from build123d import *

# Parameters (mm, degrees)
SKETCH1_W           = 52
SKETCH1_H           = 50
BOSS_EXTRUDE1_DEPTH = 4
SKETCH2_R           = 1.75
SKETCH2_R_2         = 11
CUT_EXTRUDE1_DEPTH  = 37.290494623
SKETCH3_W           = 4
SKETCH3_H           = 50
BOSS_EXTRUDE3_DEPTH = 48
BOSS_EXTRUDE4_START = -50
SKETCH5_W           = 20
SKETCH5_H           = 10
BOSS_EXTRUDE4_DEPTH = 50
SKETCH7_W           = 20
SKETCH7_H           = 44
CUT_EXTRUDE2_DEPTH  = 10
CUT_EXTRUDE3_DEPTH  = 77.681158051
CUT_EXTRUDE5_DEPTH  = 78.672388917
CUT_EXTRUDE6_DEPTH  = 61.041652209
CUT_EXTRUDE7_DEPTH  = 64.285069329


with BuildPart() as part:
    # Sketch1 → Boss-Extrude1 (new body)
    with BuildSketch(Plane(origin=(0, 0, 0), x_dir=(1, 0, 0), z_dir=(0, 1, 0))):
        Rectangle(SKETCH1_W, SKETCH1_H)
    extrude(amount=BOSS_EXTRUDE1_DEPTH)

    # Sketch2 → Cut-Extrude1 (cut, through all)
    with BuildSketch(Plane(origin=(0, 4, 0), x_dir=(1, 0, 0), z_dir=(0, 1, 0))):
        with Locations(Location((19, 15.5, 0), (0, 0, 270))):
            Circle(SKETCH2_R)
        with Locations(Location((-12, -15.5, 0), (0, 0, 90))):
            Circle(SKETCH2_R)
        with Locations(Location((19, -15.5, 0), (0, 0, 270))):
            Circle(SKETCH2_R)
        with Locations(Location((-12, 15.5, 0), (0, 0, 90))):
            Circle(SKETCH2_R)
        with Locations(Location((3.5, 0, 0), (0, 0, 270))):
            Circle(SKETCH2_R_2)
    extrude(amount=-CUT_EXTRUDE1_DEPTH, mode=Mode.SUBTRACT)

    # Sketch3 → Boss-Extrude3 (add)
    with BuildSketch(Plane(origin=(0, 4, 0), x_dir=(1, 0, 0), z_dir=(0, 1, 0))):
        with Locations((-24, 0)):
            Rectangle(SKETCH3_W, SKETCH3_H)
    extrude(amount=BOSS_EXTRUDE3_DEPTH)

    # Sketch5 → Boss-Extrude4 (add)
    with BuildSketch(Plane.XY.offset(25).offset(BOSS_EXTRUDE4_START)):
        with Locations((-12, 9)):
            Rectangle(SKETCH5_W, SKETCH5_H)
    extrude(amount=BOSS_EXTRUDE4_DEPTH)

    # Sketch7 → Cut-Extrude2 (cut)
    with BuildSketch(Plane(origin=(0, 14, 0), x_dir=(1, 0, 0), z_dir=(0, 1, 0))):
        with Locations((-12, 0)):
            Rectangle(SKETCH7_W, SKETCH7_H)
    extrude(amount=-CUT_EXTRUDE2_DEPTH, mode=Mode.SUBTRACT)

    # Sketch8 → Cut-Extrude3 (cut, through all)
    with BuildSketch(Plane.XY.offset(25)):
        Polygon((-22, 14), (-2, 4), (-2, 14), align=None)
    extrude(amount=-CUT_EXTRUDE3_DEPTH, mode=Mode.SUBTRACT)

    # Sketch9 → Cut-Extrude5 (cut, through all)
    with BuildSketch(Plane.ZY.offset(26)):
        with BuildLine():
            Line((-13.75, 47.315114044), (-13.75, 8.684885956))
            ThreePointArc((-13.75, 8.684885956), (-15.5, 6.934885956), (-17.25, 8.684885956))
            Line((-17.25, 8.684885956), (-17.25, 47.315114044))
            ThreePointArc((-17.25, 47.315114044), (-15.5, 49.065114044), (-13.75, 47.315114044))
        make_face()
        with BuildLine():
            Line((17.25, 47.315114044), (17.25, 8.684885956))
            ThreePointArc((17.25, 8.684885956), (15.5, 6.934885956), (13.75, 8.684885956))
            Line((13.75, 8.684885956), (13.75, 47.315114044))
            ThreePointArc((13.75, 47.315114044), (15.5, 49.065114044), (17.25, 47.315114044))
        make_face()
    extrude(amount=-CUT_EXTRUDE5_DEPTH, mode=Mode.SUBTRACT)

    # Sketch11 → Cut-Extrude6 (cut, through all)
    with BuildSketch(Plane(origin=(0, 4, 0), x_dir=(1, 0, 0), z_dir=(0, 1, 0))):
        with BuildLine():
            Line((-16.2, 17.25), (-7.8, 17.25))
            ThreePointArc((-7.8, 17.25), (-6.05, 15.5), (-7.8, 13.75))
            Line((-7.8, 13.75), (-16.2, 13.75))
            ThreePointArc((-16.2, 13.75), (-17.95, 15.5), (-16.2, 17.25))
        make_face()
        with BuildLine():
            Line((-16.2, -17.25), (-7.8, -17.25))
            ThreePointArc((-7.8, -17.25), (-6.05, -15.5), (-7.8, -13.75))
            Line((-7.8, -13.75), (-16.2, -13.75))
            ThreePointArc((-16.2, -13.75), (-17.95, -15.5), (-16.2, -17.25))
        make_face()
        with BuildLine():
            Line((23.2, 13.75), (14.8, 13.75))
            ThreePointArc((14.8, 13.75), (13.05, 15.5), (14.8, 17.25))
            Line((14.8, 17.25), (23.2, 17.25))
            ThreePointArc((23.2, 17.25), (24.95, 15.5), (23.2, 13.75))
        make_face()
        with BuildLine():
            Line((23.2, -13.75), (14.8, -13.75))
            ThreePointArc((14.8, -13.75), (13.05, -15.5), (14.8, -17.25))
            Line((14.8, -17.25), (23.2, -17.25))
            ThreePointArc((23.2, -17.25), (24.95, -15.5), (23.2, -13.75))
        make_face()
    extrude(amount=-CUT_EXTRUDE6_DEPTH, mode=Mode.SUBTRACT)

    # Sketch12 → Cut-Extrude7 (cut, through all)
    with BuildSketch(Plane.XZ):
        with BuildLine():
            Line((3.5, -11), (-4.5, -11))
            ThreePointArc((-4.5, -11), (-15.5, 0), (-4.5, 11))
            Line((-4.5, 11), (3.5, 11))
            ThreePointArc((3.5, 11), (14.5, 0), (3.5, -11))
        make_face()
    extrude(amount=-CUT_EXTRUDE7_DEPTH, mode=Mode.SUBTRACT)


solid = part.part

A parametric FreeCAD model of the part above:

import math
import FreeCAD as App
import Part
import Sketcher
from FreeCAD import Vector
Q = App.Units.Quantity

doc = App.newDocument("Part")
body = doc.addObject("PartDesign::Body", "Body")

sketch1 = doc.addObject("Sketcher::SketchObject", "Sketch")
body.addObject(sketch1)
sketch1.AttachmentSupport = (doc.XZ_Plane, [""])
sketch1.MapMode = "FlatFace"
sketch1.addGeometry(Part.LineSegment(Vector(-26, -25, 0), Vector(-26, 25, 0)), False)
sketch1.addGeometry(Part.LineSegment(Vector(-26, 25, 0), Vector(26, 25, 0)), False)
sketch1.addGeometry(Part.LineSegment(Vector(26, 25, 0), Vector(26, -25, 0)), False)
sketch1.addGeometry(Part.LineSegment(Vector(26, -25, 0), Vector(-26, -25, 0)), False)
sketch1.addConstraint(Sketcher.Constraint("Coincident", 0, 2, 1, 1))
sketch1.addConstraint(Sketcher.Constraint("Coincident", 1, 2, 2, 1))
sketch1.addConstraint(Sketcher.Constraint("Coincident", 2, 2, 3, 1))
sketch1.addConstraint(Sketcher.Constraint("Coincident", 3, 2, 0, 1))
sketch1.addConstraint(Sketcher.Constraint("Vertical", 0))
sketch1.addConstraint(Sketcher.Constraint("Horizontal", 1))
sketch1.addConstraint(Sketcher.Constraint("Vertical", 2))
sketch1.addConstraint(Sketcher.Constraint("Horizontal", 3))
sketch1.addConstraint(Sketcher.Constraint("Symmetric", 0, 2, 2, 2, -1, 1))
sketch1.addConstraint(Sketcher.Constraint("DistanceX", 1, 1, 1, 2, Q("52 mm")))
sketch1.addConstraint(Sketcher.Constraint("DistanceY", 0, 1, 0, 2, Q("50 mm")))
pad1 = doc.addObject("PartDesign::Pad", "Pad")
body.addObject(pad1)
pad1.Profile = sketch1
pad1.Length = 4
pad1.Reversed = True

sketch2 = doc.addObject("Sketcher::SketchObject", "Sketch001")
body.addObject(sketch2)
sketch2.AttachmentSupport = (doc.XZ_Plane, [""])
sketch2.MapMode = "FlatFace"
sketch2.AttachmentOffset = App.Placement(Vector(0, 0, -4), App.Rotation())
sketch2.addGeometry(Part.Circle(Vector(19, -15.5, 0), Vector(0, 0, 1), 1.75), False)
sketch2.addGeometry(Part.Circle(Vector(-12, 15.5, 0), Vector(0, 0, 1), 1.75), False)
sketch2.addGeometry(Part.Circle(Vector(19, 15.5, 0), Vector(0, 0, 1), 1.75), False)
sketch2.addGeometry(Part.Circle(Vector(-12, -15.5, 0), Vector(0, 0, 1), 1.75), False)
sketch2.addGeometry(Part.Circle(Vector(3.5, 0, 0), Vector(0, 0, 1), 11), False)
sketch2.addConstraint(Sketcher.Constraint("Equal", 0, 1))
sketch2.addConstraint(Sketcher.Constraint("Equal", 1, 2))
sketch2.addConstraint(Sketcher.Constraint("Equal", 2, 3))
sketch2.addConstraint(Sketcher.Constraint("Symmetric", 0, 3, 2, 3, -1))
sketch2.addConstraint(Sketcher.Constraint("Symmetric", 1, 3, 3, 3, -1))
sketch2.addConstraint(Sketcher.Constraint("PointOnObject", 4, 3, -1))
sketch2.addConstraint(Sketcher.Constraint("Horizontal", 1, 3, 2, 3))
sketch2.addConstraint(Sketcher.Constraint("Diameter", 4, Q("22 mm")))
sketch2.addConstraint(Sketcher.Constraint("Diameter", 0, Q("3.5 mm")))
sketch2.addConstraint(Sketcher.Constraint("DistanceX", -1, 1, 0, 3, Q("19 mm")))
sketch2.addConstraint(Sketcher.Constraint("DistanceX", 1, 3, -1, 1, Q("12 mm")))
sketch2.addConstraint(Sketcher.Constraint("DistanceY", 0, 3, 1, 3, Q("31 mm")))
sketch2.addConstraint(Sketcher.Constraint("DistanceX", -1, 1, 4, 3, Q("3.5 mm")))
pocket1 = doc.addObject("PartDesign::Pocket", "Pocket")
body.addObject(pocket1)
pocket1.Profile = sketch2
pocket1.Type = "ThroughAll"
pocket1.Reversed = True

sketch3 = doc.addObject("Sketcher::SketchObject", "Sketch002")
body.addObject(sketch3)
sketch3.AttachmentSupport = (doc.XZ_Plane, [""])
sketch3.MapMode = "FlatFace"
sketch3.AttachmentOffset = App.Placement(Vector(0, 0, -4), App.Rotation())
sketch3.addGeometry(Part.LineSegment(Vector(-26, -25, 0), Vector(-26, 25, 0)), False)
sketch3.addGeometry(Part.LineSegment(Vector(-26, 25, 0), Vector(-22, 25, 0)), False)
sketch3.addGeometry(Part.LineSegment(Vector(-22, 25, 0), Vector(-22, -25, 0)), False)
sketch3.addGeometry(Part.LineSegment(Vector(-22, -25, 0), Vector(-26, -25, 0)), False)
sketch3.addConstraint(Sketcher.Constraint("Coincident", 0, 2, 1, 1))
sketch3.addConstraint(Sketcher.Constraint("Coincident", 1, 2, 2, 1))
sketch3.addConstraint(Sketcher.Constraint("Coincident", 2, 2, 3, 1))
sketch3.addConstraint(Sketcher.Constraint("Coincident", 3, 2, 0, 1))
sketch3.addConstraint(Sketcher.Constraint("Vertical", 0))
sketch3.addConstraint(Sketcher.Constraint("Horizontal", 1))
sketch3.addConstraint(Sketcher.Constraint("Vertical", 2))
sketch3.addConstraint(Sketcher.Constraint("Horizontal", 3))
sketch3.addConstraint(Sketcher.Constraint("DistanceX", 1, 1, 1, 2, Q("4 mm")))
sketch3.addConstraint(Sketcher.Constraint("DistanceY", 0, 1, 0, 2, Q("50 mm")))
sketch3.addConstraint(Sketcher.Constraint("DistanceX", 0, 2, -1, 1, Q("26 mm")))
sketch3.addConstraint(Sketcher.Constraint("DistanceY", -1, 1, 0, 2, Q("25 mm")))
pad2 = doc.addObject("PartDesign::Pad", "Pad001")
body.addObject(pad2)
pad2.Profile = sketch3
pad2.Length = 48
pad2.Reversed = True

sketch4 = doc.addObject("Sketcher::SketchObject", "Sketch003")
body.addObject(sketch4)
sketch4.AttachmentSupport = (doc.XY_Plane, [""])
sketch4.MapMode = "FlatFace"
sketch4.AttachmentOffset = App.Placement(Vector(0, 0, -25), App.Rotation())
sketch4.addGeometry(Part.LineSegment(Vector(-22, 14, 0), Vector(-22, 4, 0)), False)
sketch4.addGeometry(Part.LineSegment(Vector(-22, 4, 0), Vector(-2, 4, 0)), False)
sketch4.addGeometry(Part.LineSegment(Vector(-2, 4, 0), Vector(-2, 14, 0)), False)
sketch4.addGeometry(Part.LineSegment(Vector(-2, 14, 0), Vector(-22, 14, 0)), False)
sketch4.addConstraint(Sketcher.Constraint("Coincident", 0, 2, 1, 1))
sketch4.addConstraint(Sketcher.Constraint("Coincident", 1, 2, 2, 1))
sketch4.addConstraint(Sketcher.Constraint("Coincident", 2, 2, 3, 1))
sketch4.addConstraint(Sketcher.Constraint("Coincident", 3, 2, 0, 1))
sketch4.addConstraint(Sketcher.Constraint("Vertical", 0))
sketch4.addConstraint(Sketcher.Constraint("Horizontal", 1))
sketch4.addConstraint(Sketcher.Constraint("Vertical", 2))
sketch4.addConstraint(Sketcher.Constraint("Horizontal", 3))
sketch4.addConstraint(Sketcher.Constraint("DistanceX", 1, 1, 1, 2, Q("20 mm")))
sketch4.addConstraint(Sketcher.Constraint("DistanceY", 0, 2, 0, 1, Q("10 mm")))
sketch4.addConstraint(Sketcher.Constraint("DistanceX", 0, 2, -1, 1, Q("22 mm")))
sketch4.addConstraint(Sketcher.Constraint("DistanceY", -1, 1, 0, 2, Q("4 mm")))
pad3 = doc.addObject("PartDesign::Pad", "Pad002")
body.addObject(pad3)
pad3.Profile = sketch4
pad3.Length = 50

sketch5 = doc.addObject("Sketcher::SketchObject", "Sketch004")
body.addObject(sketch5)
sketch5.AttachmentSupport = (doc.XZ_Plane, [""])
sketch5.MapMode = "FlatFace"
sketch5.AttachmentOffset = App.Placement(Vector(0, 0, -14), App.Rotation())
sketch5.addGeometry(Part.LineSegment(Vector(-22, -22, 0), Vector(-22, 22, 0)), False)
sketch5.addGeometry(Part.LineSegment(Vector(-22, 22, 0), Vector(-2, 22, 0)), False)
sketch5.addGeometry(Part.LineSegment(Vector(-2, 22, 0), Vector(-2, -22, 0)), False)
sketch5.addGeometry(Part.LineSegment(Vector(-2, -22, 0), Vector(-22, -22, 0)), False)
sketch5.addConstraint(Sketcher.Constraint("Coincident", 0, 2, 1, 1))
sketch5.addConstraint(Sketcher.Constraint("Coincident", 1, 2, 2, 1))
sketch5.addConstraint(Sketcher.Constraint("Coincident", 2, 2, 3, 1))
sketch5.addConstraint(Sketcher.Constraint("Coincident", 3, 2, 0, 1))
sketch5.addConstraint(Sketcher.Constraint("Vertical", 0))
sketch5.addConstraint(Sketcher.Constraint("Horizontal", 1))
sketch5.addConstraint(Sketcher.Constraint("Vertical", 2))
sketch5.addConstraint(Sketcher.Constraint("Horizontal", 3))
sketch5.addConstraint(Sketcher.Constraint("DistanceX", 1, 1, 1, 2, Q("20 mm")))
sketch5.addConstraint(Sketcher.Constraint("DistanceY", 0, 1, 0, 2, Q("44 mm")))
sketch5.addConstraint(Sketcher.Constraint("DistanceX", 0, 2, -1, 1, Q("22 mm")))
sketch5.addConstraint(Sketcher.Constraint("DistanceY", -1, 1, 0, 2, Q("22 mm")))
pocket2 = doc.addObject("PartDesign::Pocket", "Pocket001")
body.addObject(pocket2)
pocket2.Profile = sketch5
pocket2.Length = 10
pocket2.Reversed = True

sketch6 = doc.addObject("Sketcher::SketchObject", "Sketch005")
body.addObject(sketch6)
sketch6.AttachmentSupport = (doc.XY_Plane, [""])
sketch6.MapMode = "FlatFace"
sketch6.AttachmentOffset = App.Placement(Vector(0, 0, 25), App.Rotation())
sketch6.addGeometry(Part.LineSegment(Vector(-22, 14, 0), Vector(-2, 4, 0)), False)
sketch6.addGeometry(Part.LineSegment(Vector(-2, 4, 0), Vector(-2, 14, 0)), False)
sketch6.addGeometry(Part.LineSegment(Vector(-2, 14, 0), Vector(-22, 14, 0)), False)
sketch6.addConstraint(Sketcher.Constraint("Coincident", 0, 2, 1, 1))
sketch6.addConstraint(Sketcher.Constraint("Coincident", 1, 2, 2, 1))
sketch6.addConstraint(Sketcher.Constraint("Coincident", 2, 2, 0, 1))
sketch6.addConstraint(Sketcher.Constraint("Vertical", 1))
sketch6.addConstraint(Sketcher.Constraint("Horizontal", 2))
sketch6.addConstraint(Sketcher.Constraint("DistanceX", 2, 2, 2, 1, Q("20 mm")))
sketch6.addConstraint(Sketcher.Constraint("DistanceY", 1, 1, 1, 2, Q("10 mm")))
sketch6.addConstraint(Sketcher.Constraint("DistanceX", 0, 2, -1, 1, Q("2 mm")))
sketch6.addConstraint(Sketcher.Constraint("DistanceY", -1, 1, 0, 2, Q("4 mm")))
pocket3 = doc.addObject("PartDesign::Pocket", "Pocket002")
body.addObject(pocket3)
pocket3.Profile = sketch6
pocket3.Type = "ThroughAll"

sketch7 = doc.addObject("Sketcher::SketchObject", "Sketch006")
body.addObject(sketch7)
sketch7.AttachmentSupport = (doc.YZ_Plane, [""])
sketch7.MapMode = "FlatFace"
sketch7.AttachmentOffset = App.Placement(Vector(0, 0, -26), App.Rotation())
sketch7.addGeometry(Part.LineSegment(Vector(8.684886, -13.75, 0), Vector(47.315114, -13.75, 0)), False)
sketch7.addGeometry(Part.ArcOfCircle(Part.Circle(Vector(47.315114, -15.5, 0), Vector(0, 0, 1), 1.75), math.radians(-90), math.radians(90)), False)
sketch7.addGeometry(Part.LineSegment(Vector(47.315114, -17.25, 0), Vector(8.684886, -17.25, 0)), False)
sketch7.addGeometry(Part.ArcOfCircle(Part.Circle(Vector(8.684886, -15.5, 0), Vector(0, 0, 1), 1.75), math.radians(90), math.radians(270)), False)
sketch7.addGeometry(Part.LineSegment(Vector(8.684886, 17.25, 0), Vector(47.315114, 17.25, 0)), False)
sketch7.addGeometry(Part.ArcOfCircle(Part.Circle(Vector(47.315114, 15.5, 0), Vector(0, 0, 1), 1.75), math.radians(-90), math.radians(90)), False)
sketch7.addGeometry(Part.LineSegment(Vector(47.315114, 13.75, 0), Vector(8.684886, 13.75, 0)), False)
sketch7.addGeometry(Part.ArcOfCircle(Part.Circle(Vector(8.684886, 15.5, 0), Vector(0, 0, 1), 1.75), math.radians(90), math.radians(270)), False)
sketch7.addConstraint(Sketcher.Constraint("Tangent", 0, 2, 1, 2))
sketch7.addConstraint(Sketcher.Constraint("Tangent", 1, 1, 2, 1))
sketch7.addConstraint(Sketcher.Constraint("Tangent", 2, 2, 3, 2))
sketch7.addConstraint(Sketcher.Constraint("Tangent", 3, 1, 0, 1))
sketch7.addConstraint(Sketcher.Constraint("Tangent", 4, 2, 5, 2))
sketch7.addConstraint(Sketcher.Constraint("Tangent", 5, 1, 6, 1))
sketch7.addConstraint(Sketcher.Constraint("Tangent", 6, 2, 7, 2))
sketch7.addConstraint(Sketcher.Constraint("Tangent", 7, 1, 4, 1))
sketch7.addConstraint(Sketcher.Constraint("Horizontal", 0))
sketch7.addConstraint(Sketcher.Constraint("Horizontal", 2))
sketch7.addConstraint(Sketcher.Constraint("Horizontal", 4))
sketch7.addConstraint(Sketcher.Constraint("Horizontal", 6))
sketch7.addConstraint(Sketcher.Constraint("Equal", 3, 5))
sketch7.addConstraint(Sketcher.Constraint("Symmetric", 1, 3, 5, 3, -1))
sketch7.addConstraint(Sketcher.Constraint("Vertical", 3, 3, 7, 3))
sketch7.addConstraint(Sketcher.Constraint("Radius", 1, Q("1.75 mm")))
sketch7.addConstraint(Sketcher.Constraint("DistanceY", 1, 3, 5, 3, Q("31 mm")))
sketch7.addConstraint(Sketcher.Constraint("DistanceX", 0, 1, 0, 2, Q("38.630228 mm")))
sketch7.addConstraint(Sketcher.Constraint("DistanceX", -1, 1, 1, 3, Q("47.315114 mm")))
pocket4 = doc.addObject("PartDesign::Pocket", "Pocket003")
body.addObject(pocket4)
pocket4.Profile = sketch7
pocket4.Type = "ThroughAll"
pocket4.Reversed = True

sketch8 = doc.addObject("Sketcher::SketchObject", "Sketch007")
body.addObject(sketch8)
sketch8.AttachmentSupport = (doc.XZ_Plane, [""])
sketch8.MapMode = "FlatFace"
sketch8.AttachmentOffset = App.Placement(Vector(0, 0, -4), App.Rotation())
sketch8.addGeometry(Part.LineSegment(Vector(-7.8, -17.25, 0), Vector(-16.2, -17.25, 0)), False)
sketch8.addGeometry(Part.ArcOfCircle(Part.Circle(Vector(-16.2, -15.5, 0), Vector(0, 0, 1), 1.75), math.radians(90), math.radians(270)), False)
sketch8.addGeometry(Part.LineSegment(Vector(-16.2, -13.75, 0), Vector(-7.8, -13.75, 0)), False)
sketch8.addGeometry(Part.ArcOfCircle(Part.Circle(Vector(-7.8, -15.5, 0), Vector(0, 0, 1), 1.75), math.radians(-90), math.radians(90)), False)
sketch8.addGeometry(Part.LineSegment(Vector(-16.2, 17.25, 0), Vector(-7.8, 17.25, 0)), False)
sketch8.addGeometry(Part.ArcOfCircle(Part.Circle(Vector(-7.8, 15.5, 0), Vector(0, 0, 1), 1.75), math.radians(-90), math.radians(90)), False)
sketch8.addGeometry(Part.LineSegment(Vector(-7.8, 13.75, 0), Vector(-16.2, 13.75, 0)), False)
sketch8.addGeometry(Part.ArcOfCircle(Part.Circle(Vector(-16.2, 15.5, 0), Vector(0, 0, 1), 1.75), math.radians(90), math.radians(270)), False)
sketch8.addGeometry(Part.LineSegment(Vector(14.8, -13.75, 0), Vector(23.2, -13.75, 0)), False)
sketch8.addGeometry(Part.ArcOfCircle(Part.Circle(Vector(23.2, -15.5, 0), Vector(0, 0, 1), 1.75), math.radians(-90), math.radians(90)), False)
sketch8.addGeometry(Part.LineSegment(Vector(23.2, -17.25, 0), Vector(14.8, -17.25, 0)), False)
sketch8.addGeometry(Part.ArcOfCircle(Part.Circle(Vector(14.8, -15.5, 0), Vector(0, 0, 1), 1.75), math.radians(90), math.radians(270)), False)
sketch8.addGeometry(Part.LineSegment(Vector(23.2, 13.75, 0), Vector(14.8, 13.75, 0)), False)
sketch8.addGeometry(Part.ArcOfCircle(Part.Circle(Vector(14.8, 15.5, 0), Vector(0, 0, 1), 1.75), math.radians(90), math.radians(270)), False)
sketch8.addGeometry(Part.LineSegment(Vector(14.8, 17.25, 0), Vector(23.2, 17.25, 0)), False)
sketch8.addGeometry(Part.ArcOfCircle(Part.Circle(Vector(23.2, 15.5, 0), Vector(0, 0, 1), 1.75), math.radians(-90), math.radians(90)), False)
sketch8.addConstraint(Sketcher.Constraint("Tangent", 0, 2, 1, 2))
sketch8.addConstraint(Sketcher.Constraint("Tangent", 1, 1, 2, 1))
sketch8.addConstraint(Sketcher.Constraint("Tangent", 2, 2, 3, 2))
sketch8.addConstraint(Sketcher.Constraint("Tangent", 3, 1, 0, 1))
sketch8.addConstraint(Sketcher.Constraint("Tangent", 4, 2, 5, 2))
sketch8.addConstraint(Sketcher.Constraint("Tangent", 5, 1, 6, 1))
sketch8.addConstraint(Sketcher.Constraint("Tangent", 6, 2, 7, 2))
sketch8.addConstraint(Sketcher.Constraint("Tangent", 7, 1, 4, 1))
sketch8.addConstraint(Sketcher.Constraint("Tangent", 8, 2, 9, 2))
sketch8.addConstraint(Sketcher.Constraint("Tangent", 9, 1, 10, 1))
sketch8.addConstraint(Sketcher.Constraint("Tangent", 10, 2, 11, 2))
sketch8.addConstraint(Sketcher.Constraint("Tangent", 11, 1, 8, 1))
sketch8.addConstraint(Sketcher.Constraint("Tangent", 12, 2, 13, 2))
sketch8.addConstraint(Sketcher.Constraint("Tangent", 13, 1, 14, 1))
sketch8.addConstraint(Sketcher.Constraint("Tangent", 14, 2, 15, 2))
sketch8.addConstraint(Sketcher.Constraint("Tangent", 15, 1, 12, 1))
sketch8.addConstraint(Sketcher.Constraint("Horizontal", 0))
sketch8.addConstraint(Sketcher.Constraint("Horizontal", 2))
sketch8.addConstraint(Sketcher.Constraint("Horizontal", 4))
sketch8.addConstraint(Sketcher.Constraint("Horizontal", 6))
sketch8.addConstraint(Sketcher.Constraint("Horizontal", 8))
sketch8.addConstraint(Sketcher.Constraint("Horizontal", 10))
sketch8.addConstraint(Sketcher.Constraint("Horizontal", 12))
sketch8.addConstraint(Sketcher.Constraint("Horizontal", 14))
sketch8.addConstraint(Sketcher.Constraint("Equal", 3, 5))
sketch8.addConstraint(Sketcher.Constraint("Equal", 7, 9))
sketch8.addConstraint(Sketcher.Constraint("Equal", 11, 13))
sketch8.addConstraint(Sketcher.Constraint("Symmetric", 3, 3, 5, 3, -1))
sketch8.addConstraint(Sketcher.Constraint("Symmetric", 11, 3, 13, 3, -1))
sketch8.addConstraint(Sketcher.Constraint("Horizontal", 3, 3, 9, 3))
sketch8.addConstraint(Sketcher.Constraint("Vertical", 1, 3, 7, 3))
sketch8.addConstraint(Sketcher.Constraint("Vertical", 9, 3, 15, 3))
sketch8.addConstraint(Sketcher.Constraint("Equal", 6, 8))
sketch8.addConstraint(Sketcher.Constraint("Radius", 1, Q("1.75 mm")))
sketch8.addConstraint(Sketcher.Constraint("DistanceX", 0, 2, 0, 1, Q("8.4 mm")))
sketch8.addConstraint(Sketcher.Constraint("DistanceY", 3, 3, 5, 3, Q("31 mm")))
sketch8.addConstraint(Sketcher.Constraint("DistanceX", 3, 3, 9, 3, Q("31 mm")))
sketch8.addConstraint(Sketcher.Constraint("DistanceX", 1, 3, -1, 1, Q("16.2 mm")))
pocket5 = doc.addObject("PartDesign::Pocket", "Pocket004")
body.addObject(pocket5)
pocket5.Profile = sketch8
pocket5.Type = "ThroughAll"
pocket5.Reversed = True

sketch9 = doc.addObject("Sketcher::SketchObject", "Sketch008")
body.addObject(sketch9)
sketch9.AttachmentSupport = (doc.XZ_Plane, [""])
sketch9.MapMode = "FlatFace"
sketch9.addGeometry(Part.LineSegment(Vector(-4.5, -11, 0), Vector(3.5, -11, 0)), False)
sketch9.addGeometry(Part.ArcOfCircle(Part.Circle(Vector(3.5, 0, 0), Vector(0, 0, 1), 11), math.radians(-90), math.radians(90)), False)
sketch9.addGeometry(Part.LineSegment(Vector(3.5, 11, 0), Vector(-4.5, 11, 0)), False)
sketch9.addGeometry(Part.ArcOfCircle(Part.Circle(Vector(-4.5, 0, 0), Vector(0, 0, 1), 11), math.radians(90), math.radians(270)), False)
sketch9.addConstraint(Sketcher.Constraint("Tangent", 0, 2, 1, 1))
sketch9.addConstraint(Sketcher.Constraint("Tangent", 1, 2, 2, 1))
sketch9.addConstraint(Sketcher.Constraint("Tangent", 2, 2, 3, 1))
sketch9.addConstraint(Sketcher.Constraint("Tangent", 3, 2, 0, 1))
sketch9.addConstraint(Sketcher.Constraint("Horizontal", 0))
sketch9.addConstraint(Sketcher.Constraint("Horizontal", 2))
sketch9.addConstraint(Sketcher.Constraint("PointOnObject", 1, 3, -1))
sketch9.addConstraint(Sketcher.Constraint("Radius", 1, Q("11 mm")))
sketch9.addConstraint(Sketcher.Constraint("DistanceX", 0, 1, 0, 2, Q("8 mm")))
sketch9.addConstraint(Sketcher.Constraint("DistanceX", -1, 1, 1, 3, Q("3.5 mm")))
pocket6 = doc.addObject("PartDesign::Pocket", "Pocket005")
body.addObject(pocket6)
pocket6.Profile = sketch9
pocket6.Type = "ThroughAll"

doc.recompute()
